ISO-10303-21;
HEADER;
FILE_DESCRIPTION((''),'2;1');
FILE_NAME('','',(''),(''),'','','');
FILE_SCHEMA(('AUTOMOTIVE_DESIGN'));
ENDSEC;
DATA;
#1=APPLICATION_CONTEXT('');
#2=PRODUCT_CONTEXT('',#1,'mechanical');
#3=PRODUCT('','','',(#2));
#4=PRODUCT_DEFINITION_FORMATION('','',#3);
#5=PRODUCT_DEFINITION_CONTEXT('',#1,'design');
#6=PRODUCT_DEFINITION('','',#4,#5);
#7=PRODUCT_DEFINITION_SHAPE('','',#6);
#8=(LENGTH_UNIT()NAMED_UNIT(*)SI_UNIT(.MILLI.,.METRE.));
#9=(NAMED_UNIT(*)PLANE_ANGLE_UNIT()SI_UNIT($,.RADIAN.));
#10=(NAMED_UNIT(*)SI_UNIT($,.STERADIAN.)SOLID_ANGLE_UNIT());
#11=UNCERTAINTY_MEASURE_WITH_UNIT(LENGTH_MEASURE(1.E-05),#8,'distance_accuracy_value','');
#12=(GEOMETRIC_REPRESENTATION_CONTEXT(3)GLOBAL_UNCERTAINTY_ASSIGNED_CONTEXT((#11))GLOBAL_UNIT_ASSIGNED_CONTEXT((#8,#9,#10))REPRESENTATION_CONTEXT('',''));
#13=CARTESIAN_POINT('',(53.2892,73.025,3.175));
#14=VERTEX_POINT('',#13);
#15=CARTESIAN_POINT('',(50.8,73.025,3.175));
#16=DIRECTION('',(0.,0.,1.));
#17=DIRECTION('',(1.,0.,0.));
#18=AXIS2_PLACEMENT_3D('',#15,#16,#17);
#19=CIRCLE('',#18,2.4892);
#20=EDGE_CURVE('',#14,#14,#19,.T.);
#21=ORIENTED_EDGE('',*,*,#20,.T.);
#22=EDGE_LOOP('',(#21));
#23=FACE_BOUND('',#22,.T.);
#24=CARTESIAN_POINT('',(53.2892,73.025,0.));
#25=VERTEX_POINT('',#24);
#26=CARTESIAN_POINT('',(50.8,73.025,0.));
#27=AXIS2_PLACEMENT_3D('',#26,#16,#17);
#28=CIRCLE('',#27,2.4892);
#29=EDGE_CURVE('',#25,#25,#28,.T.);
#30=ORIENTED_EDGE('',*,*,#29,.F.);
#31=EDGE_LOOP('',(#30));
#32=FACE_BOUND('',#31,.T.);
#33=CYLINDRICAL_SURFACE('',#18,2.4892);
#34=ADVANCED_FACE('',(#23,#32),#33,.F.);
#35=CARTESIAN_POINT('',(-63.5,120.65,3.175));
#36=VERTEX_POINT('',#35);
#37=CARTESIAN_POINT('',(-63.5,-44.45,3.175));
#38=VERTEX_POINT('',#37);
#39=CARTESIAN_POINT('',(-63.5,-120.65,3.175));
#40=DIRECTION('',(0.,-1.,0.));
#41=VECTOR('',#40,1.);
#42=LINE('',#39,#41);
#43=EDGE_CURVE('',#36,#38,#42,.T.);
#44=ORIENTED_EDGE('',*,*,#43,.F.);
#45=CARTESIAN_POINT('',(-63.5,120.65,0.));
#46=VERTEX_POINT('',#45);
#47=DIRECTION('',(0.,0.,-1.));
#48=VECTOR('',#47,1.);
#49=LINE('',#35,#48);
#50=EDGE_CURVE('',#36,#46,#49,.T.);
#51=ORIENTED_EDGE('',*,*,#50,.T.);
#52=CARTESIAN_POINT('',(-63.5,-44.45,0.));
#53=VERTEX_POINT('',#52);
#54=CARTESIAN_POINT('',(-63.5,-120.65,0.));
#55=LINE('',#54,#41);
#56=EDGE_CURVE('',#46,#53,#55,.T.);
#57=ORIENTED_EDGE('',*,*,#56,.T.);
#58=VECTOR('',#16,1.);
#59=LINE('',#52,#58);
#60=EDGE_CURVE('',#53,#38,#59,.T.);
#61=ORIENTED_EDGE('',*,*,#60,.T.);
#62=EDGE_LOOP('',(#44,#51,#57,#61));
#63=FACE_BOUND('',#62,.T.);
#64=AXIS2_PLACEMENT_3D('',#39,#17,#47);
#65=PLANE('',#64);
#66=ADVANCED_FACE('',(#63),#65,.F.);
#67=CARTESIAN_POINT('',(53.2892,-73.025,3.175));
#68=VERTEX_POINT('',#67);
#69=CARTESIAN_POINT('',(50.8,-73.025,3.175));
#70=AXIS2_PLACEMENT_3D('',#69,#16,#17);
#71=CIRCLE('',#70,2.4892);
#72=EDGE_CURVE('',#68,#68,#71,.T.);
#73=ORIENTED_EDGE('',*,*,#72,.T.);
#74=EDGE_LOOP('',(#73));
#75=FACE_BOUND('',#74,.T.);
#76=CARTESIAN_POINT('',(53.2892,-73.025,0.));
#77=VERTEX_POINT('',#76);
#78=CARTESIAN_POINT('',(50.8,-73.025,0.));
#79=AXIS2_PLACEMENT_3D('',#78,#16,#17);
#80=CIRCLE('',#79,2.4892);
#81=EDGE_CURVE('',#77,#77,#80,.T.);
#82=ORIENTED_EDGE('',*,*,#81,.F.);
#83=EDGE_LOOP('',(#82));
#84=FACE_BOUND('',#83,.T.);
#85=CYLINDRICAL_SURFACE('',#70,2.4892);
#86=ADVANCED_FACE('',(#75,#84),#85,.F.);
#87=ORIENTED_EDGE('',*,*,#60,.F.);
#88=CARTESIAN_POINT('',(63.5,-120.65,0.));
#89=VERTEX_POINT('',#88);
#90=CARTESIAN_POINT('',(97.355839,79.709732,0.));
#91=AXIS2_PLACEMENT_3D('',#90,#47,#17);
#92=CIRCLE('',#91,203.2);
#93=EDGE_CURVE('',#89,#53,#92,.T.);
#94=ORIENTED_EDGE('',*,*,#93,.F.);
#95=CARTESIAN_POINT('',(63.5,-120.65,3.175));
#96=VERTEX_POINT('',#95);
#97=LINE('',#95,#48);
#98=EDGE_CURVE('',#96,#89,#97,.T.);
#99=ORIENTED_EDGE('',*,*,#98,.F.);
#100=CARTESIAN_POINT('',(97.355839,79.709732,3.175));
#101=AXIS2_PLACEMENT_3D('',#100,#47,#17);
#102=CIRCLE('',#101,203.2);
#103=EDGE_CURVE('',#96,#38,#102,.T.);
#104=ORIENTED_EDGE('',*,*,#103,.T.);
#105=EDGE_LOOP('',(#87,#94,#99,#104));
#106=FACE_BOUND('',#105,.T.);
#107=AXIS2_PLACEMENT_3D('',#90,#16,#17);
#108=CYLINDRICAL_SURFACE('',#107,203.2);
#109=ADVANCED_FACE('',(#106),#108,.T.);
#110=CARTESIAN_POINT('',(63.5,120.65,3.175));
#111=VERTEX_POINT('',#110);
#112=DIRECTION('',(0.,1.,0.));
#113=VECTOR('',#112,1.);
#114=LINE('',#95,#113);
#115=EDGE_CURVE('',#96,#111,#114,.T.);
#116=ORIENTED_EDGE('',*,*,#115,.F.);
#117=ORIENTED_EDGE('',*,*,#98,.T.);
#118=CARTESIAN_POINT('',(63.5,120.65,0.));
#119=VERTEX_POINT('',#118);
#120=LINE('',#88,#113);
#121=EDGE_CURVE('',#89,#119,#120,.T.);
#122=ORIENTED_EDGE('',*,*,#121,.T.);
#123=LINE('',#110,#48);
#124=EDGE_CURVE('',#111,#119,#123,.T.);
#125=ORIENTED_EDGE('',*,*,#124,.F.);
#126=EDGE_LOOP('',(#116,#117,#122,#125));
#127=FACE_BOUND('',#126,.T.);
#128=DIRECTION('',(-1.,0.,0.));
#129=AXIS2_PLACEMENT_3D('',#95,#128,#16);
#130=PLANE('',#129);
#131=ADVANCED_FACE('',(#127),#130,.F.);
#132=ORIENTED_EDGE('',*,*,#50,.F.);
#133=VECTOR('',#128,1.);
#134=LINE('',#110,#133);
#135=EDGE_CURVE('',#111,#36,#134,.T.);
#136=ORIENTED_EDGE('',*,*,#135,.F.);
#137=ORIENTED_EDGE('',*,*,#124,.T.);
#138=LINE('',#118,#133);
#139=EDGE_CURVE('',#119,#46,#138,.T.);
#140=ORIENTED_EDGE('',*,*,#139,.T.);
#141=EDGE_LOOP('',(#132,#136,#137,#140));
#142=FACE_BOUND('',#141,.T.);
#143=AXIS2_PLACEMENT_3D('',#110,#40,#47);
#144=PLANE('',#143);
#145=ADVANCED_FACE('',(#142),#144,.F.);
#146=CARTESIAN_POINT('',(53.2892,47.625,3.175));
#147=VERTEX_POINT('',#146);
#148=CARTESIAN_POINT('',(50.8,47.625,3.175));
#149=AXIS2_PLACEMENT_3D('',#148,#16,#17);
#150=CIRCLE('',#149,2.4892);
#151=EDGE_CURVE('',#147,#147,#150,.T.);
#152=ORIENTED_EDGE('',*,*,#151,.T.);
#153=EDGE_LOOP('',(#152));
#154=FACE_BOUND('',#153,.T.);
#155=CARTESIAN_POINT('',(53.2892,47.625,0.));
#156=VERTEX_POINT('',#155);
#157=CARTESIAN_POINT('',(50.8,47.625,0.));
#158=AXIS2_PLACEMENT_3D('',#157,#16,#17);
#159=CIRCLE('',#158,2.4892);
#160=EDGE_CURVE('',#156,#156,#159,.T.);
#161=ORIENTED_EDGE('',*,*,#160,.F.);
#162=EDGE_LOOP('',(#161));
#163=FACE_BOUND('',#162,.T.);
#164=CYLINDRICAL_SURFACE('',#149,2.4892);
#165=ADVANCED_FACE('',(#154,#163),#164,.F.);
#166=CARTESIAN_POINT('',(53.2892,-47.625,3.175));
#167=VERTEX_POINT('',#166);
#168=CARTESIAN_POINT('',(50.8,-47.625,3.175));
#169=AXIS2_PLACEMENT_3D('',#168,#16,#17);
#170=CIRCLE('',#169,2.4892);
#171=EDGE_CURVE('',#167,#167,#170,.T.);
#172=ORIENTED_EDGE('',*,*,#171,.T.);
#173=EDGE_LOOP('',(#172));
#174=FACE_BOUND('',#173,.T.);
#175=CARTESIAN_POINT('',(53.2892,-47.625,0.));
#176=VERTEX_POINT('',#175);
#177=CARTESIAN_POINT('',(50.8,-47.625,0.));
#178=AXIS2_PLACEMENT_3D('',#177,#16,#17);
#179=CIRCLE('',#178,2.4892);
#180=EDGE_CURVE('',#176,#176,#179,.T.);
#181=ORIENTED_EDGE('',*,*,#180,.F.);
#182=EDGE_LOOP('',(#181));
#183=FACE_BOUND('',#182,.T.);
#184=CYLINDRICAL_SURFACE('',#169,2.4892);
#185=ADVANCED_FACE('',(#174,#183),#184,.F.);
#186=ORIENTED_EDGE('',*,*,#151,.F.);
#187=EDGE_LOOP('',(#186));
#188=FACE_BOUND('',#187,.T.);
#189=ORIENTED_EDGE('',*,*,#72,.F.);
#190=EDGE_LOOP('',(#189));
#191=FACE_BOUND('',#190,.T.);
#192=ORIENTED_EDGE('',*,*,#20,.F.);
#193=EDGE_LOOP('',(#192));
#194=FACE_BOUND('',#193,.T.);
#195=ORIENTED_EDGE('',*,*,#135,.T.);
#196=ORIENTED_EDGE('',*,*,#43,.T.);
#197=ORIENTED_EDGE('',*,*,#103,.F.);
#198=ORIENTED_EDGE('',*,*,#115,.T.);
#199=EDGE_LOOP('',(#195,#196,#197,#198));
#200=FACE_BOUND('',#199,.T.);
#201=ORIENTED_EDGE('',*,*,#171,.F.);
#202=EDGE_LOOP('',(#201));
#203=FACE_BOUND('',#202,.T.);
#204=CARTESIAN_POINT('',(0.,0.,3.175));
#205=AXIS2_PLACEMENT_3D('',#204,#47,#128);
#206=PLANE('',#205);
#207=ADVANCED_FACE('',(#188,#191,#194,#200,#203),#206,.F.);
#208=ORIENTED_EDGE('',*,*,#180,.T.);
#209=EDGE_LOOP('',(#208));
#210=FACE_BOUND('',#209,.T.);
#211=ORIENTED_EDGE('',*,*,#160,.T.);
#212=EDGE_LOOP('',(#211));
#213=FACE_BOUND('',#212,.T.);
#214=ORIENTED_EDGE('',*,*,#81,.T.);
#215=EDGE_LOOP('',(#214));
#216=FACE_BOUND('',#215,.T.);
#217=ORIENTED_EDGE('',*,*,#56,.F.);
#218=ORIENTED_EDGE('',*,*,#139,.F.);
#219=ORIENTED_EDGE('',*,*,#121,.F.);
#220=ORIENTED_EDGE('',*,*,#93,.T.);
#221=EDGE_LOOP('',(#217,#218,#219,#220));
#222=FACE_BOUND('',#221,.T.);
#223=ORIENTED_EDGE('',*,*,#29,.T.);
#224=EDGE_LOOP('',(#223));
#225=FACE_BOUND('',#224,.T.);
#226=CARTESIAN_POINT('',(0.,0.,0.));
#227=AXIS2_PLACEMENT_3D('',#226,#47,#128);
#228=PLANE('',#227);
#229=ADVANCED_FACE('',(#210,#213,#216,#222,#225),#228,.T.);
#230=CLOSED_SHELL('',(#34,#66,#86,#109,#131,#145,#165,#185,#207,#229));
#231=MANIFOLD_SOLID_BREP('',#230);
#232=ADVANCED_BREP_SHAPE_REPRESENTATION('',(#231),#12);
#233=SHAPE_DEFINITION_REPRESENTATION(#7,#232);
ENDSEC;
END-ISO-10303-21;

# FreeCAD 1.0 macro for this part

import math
import FreeCAD as App
import Part
import Sketcher

V = App.Vector
Q = App.Units.Quantity

doc = App.newDocument("Part")
body = doc.addObject("PartDesign::Body", "Body")

# Sketch on XY plane
sketch1 = body.newObject("Sketcher::SketchObject", "Sketch")
sketch1.AttachmentSupport = (doc.getObject("XY_Plane"), [""])
sketch1.MapMode = "FlatFace"
sketch1.addGeometry(Part.LineSegment(V(-63.5, -120.65, 0), V(63.5, -120.65, 0)), False)
sketch1.addGeometry(Part.LineSegment(V(63.5, -120.65, 0), V(63.5, 120.65, 0)), False)
sketch1.addGeometry(Part.LineSegment(V(63.5, 120.65, 0), V(-63.5, 120.65, 0)), False)
sketch1.addGeometry(Part.LineSegment(V(-63.5, 120.65, 0), V(-63.5, -120.65, 0)), False)
sketch1.addConstraint(Sketcher.Constraint("Coincident", 0, 2, 1, 1))
sketch1.addConstraint(Sketcher.Constraint("Coincident", 1, 2, 2, 1))
sketch1.addConstraint(Sketcher.Constraint("Coincident", 2, 2, 3, 1))
sketch1.addConstraint(Sketcher.Constraint("Coincident", 3, 2, 0, 1))
sketch1.addConstraint(Sketcher.Constraint("Horizontal", 0))
sketch1.addConstraint(Sketcher.Constraint("Vertical", 1))
sketch1.addConstraint(Sketcher.Constraint("Horizontal", 2))
sketch1.addConstraint(Sketcher.Constraint("Vertical", 3))
sketch1.addConstraint(Sketcher.Constraint("Symmetric", 0, 2, 2, 2, -1, 1))
sketch1.addConstraint(Sketcher.Constraint("DistanceX", 0, 1, 0, 2, Q("5 in")))
sketch1.addConstraint(Sketcher.Constraint("DistanceY", 1, 1, 1, 2, Q("9.5 in")))
pad1 = body.newObject("PartDesign::Pad", "Pad")
pad1.Profile = sketch1
pad1.Length = Q("0.125 in")

# Sketch on XY plane
sketch2 = body.newObject("Sketcher::SketchObject", "Sketch001")
sketch2.AttachmentSupport = (doc.getObject("XY_Plane"), [""])
sketch2.MapMode = "FlatFace"
sketch2.AttachmentOffset = App.Placement(V(0, 0, 0.125 * 25.4), App.Rotation())
sketch2.addGeometry(Part.Circle(V(50.8, 73.025, 0), V(0, 0, 1), 2.4892), False)
sketch2.addGeometry(Part.Circle(V(50.8, -73.025, 0), V(0, 0, 1), 2.4892), False)
sketch2.addGeometry(Part.Circle(V(50.8, -47.625, 0), V(0, 0, 1), 2.4892), False)
sketch2.addGeometry(Part.Circle(V(50.8, 47.625, 0), V(0, 0, 1), 2.4892), False)
sketch2.addConstraint(Sketcher.Constraint("Equal", 0, 1))
sketch2.addConstraint(Sketcher.Constraint("Equal", 1, 2))
sketch2.addConstraint(Sketcher.Constraint("Equal", 2, 3))
sketch2.addConstraint(Sketcher.Constraint("Symmetric", 0, 3, 1, 3, -1))
sketch2.addConstraint(Sketcher.Constraint("Symmetric", 2, 3, 3, 3, -1))
sketch2.addConstraint(Sketcher.Constraint("Vertical", 1, 3, 2, 3))
sketch2.addConstraint(Sketcher.Constraint("Diameter", 0, Q("0.196 in")))
sketch2.addConstraint(Sketcher.Constraint("DistanceX", -1, 1, 0, 3, Q("2 in")))
sketch2.addConstraint(Sketcher.Constraint("DistanceY", 1, 3, 2, 3, Q("1 in")))
sketch2.addConstraint(Sketcher.Constraint("DistanceY", 1, 3, 0, 3, Q("5.75 in")))
doc.recompute()
hole = body.newObject("PartDesign::Hole", "Hole")
hole.Profile = sketch2
hole.ThreadType = "None"
hole.Diameter = Q("0.196 in")
hole.DepthType = "ThroughAll"

# Sketch on XY plane
sketch3 = body.newObject("Sketcher::SketchObject", "Sketch002")
sketch3.AttachmentSupport = (doc.getObject("XY_Plane"), [""])
sketch3.MapMode = "FlatFace"
sketch3.AttachmentOffset = App.Placement(V(0, 0, 0.125 * 25.4), App.Rotation())
sketch3.addGeometry(Part.LineSegment(V(-63.5, -44.45, 0), V(-63.5, -120.65, 0)), False)
sketch3.addGeometry(Part.LineSegment(V(-63.5, -120.65, 0), V(63.5, -120.65, 0)), False)
sketch3.addGeometry(Part.ArcOfCircle(Part.Circle(V(97.355839, 79.709732, 0), V(0, 0, 1), 203.2), math.radians(-142.336541), math.radians(-99.590972)), False)
sketch3.addConstraint(Sketcher.Constraint("Coincident", 0, 2, 1, 1))
sketch3.addConstraint(Sketcher.Constraint("Coincident", 1, 2, 2, 2))
sketch3.addConstraint(Sketcher.Constraint("Coincident", 2, 1, 0, 1))
sketch3.addConstraint(Sketcher.Constraint("Vertical", 0))
sketch3.addConstraint(Sketcher.Constraint("Horizontal", 1))
sketch3.addConstraint(Sketcher.Constraint("Radius", 2, Q("8 in")))
sketch3.addConstraint(Sketcher.Constraint("DistanceX", 1, 1, 1, 2, Q("5 in")))
sketch3.addConstraint(Sketcher.Constraint("DistanceY", 0, 2, 0, 1, Q("3 in")))
sketch3.addConstraint(Sketcher.Constraint("DistanceX", 0, 2, -1, 1, Q("2.5 in")))
sketch3.addConstraint(Sketcher.Constraint("DistanceY", 0, 2, -1, 1, Q("4.75 in")))
pocket1 = body.newObject("PartDesign::Pocket", "Pocket")
pocket1.Profile = sketch3
pocket1.Type = "ThroughAll"

doc.recompute()
